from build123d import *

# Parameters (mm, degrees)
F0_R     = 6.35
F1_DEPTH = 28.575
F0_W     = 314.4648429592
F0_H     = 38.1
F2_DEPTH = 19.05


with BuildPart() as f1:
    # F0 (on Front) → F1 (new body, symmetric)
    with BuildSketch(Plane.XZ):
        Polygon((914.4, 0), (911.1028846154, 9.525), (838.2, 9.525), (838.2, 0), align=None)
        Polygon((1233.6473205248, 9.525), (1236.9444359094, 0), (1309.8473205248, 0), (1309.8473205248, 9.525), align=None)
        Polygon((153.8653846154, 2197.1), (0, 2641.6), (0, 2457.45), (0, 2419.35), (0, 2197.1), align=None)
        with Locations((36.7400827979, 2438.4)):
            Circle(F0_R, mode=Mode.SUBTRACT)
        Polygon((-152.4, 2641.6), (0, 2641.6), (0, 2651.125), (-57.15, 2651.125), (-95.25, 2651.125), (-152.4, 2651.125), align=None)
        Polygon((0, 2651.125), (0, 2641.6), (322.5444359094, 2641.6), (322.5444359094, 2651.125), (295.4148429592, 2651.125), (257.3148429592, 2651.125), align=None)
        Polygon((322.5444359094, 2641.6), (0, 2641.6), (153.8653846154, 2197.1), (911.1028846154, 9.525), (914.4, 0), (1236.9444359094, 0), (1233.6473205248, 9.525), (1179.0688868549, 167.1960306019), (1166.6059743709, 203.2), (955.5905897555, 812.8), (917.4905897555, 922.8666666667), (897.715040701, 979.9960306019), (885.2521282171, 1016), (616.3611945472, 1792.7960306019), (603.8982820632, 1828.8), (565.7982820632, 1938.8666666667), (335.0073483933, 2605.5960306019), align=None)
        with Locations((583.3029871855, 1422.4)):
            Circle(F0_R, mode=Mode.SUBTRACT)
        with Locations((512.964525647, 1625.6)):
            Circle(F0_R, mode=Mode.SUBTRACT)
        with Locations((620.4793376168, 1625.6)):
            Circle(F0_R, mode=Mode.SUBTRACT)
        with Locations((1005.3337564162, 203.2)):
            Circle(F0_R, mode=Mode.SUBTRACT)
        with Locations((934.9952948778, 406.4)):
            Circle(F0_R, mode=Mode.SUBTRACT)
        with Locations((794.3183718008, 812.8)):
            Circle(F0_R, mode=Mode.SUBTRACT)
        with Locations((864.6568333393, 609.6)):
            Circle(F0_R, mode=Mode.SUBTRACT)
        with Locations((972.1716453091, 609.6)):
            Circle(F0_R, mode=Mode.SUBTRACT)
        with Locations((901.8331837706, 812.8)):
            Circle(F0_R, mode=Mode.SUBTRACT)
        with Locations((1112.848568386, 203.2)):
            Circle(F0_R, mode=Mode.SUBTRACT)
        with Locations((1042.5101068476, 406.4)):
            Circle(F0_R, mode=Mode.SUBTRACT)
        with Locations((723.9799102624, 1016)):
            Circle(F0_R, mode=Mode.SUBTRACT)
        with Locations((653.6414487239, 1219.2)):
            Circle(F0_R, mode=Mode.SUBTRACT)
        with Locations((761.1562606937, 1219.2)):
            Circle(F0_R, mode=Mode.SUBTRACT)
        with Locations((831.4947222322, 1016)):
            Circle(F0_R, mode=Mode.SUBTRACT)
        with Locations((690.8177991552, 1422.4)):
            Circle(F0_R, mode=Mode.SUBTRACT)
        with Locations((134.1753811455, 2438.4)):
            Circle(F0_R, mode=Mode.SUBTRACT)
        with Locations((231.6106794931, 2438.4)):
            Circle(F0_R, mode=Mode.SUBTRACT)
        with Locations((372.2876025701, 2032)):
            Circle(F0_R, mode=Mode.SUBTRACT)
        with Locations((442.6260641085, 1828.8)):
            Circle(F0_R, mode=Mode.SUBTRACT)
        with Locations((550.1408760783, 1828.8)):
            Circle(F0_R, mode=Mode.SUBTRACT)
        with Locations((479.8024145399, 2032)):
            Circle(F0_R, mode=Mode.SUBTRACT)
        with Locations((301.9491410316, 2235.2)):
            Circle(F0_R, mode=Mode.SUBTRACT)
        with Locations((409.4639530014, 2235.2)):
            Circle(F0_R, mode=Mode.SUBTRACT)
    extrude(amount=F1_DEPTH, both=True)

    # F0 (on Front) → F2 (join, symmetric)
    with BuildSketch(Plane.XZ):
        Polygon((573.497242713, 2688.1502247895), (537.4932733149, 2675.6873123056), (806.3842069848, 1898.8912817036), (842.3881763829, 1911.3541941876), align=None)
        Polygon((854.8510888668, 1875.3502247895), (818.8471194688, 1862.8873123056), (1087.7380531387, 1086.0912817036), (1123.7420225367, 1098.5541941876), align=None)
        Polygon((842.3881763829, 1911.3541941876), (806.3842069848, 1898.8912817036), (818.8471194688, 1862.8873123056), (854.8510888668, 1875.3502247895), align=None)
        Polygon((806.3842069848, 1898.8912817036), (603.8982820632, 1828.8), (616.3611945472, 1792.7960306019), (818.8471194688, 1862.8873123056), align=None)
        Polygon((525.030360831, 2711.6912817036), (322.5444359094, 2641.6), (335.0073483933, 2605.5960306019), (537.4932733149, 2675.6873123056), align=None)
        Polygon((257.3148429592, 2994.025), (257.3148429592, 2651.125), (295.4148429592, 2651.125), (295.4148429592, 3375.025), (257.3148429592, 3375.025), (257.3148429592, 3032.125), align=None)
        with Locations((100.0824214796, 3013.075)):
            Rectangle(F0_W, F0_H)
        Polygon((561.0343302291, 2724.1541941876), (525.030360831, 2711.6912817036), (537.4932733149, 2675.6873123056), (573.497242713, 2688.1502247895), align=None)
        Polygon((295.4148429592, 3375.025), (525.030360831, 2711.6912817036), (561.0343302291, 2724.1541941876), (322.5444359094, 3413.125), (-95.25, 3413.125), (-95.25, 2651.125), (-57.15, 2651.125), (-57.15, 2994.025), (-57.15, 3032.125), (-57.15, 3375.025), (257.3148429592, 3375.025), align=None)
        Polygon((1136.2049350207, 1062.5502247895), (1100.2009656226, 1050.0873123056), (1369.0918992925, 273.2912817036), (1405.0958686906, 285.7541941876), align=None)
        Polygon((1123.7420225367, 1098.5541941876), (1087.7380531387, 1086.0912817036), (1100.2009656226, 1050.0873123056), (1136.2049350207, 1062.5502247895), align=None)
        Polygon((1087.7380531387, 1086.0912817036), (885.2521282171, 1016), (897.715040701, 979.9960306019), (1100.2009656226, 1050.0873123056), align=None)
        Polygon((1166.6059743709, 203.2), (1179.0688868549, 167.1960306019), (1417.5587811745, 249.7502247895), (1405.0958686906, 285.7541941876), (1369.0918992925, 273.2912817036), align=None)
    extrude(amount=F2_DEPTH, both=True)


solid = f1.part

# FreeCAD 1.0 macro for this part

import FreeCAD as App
import Part
import Sketcher
Q = App.Units.Quantity

doc = App.newDocument("Part")
params = doc.addObject("Spreadsheet::Sheet", "Params")
for row, (alias, value) in enumerate([
    ("sketch1_diameter", "0.5 in"),
    ("sketch1_width", "3 in"),
    ("sketch1_width2", "6 in"),
    ("sketch1_height", "17.5 in"),
    ("sketch1_length", "1.5 in"),
    ("pad1_length", "2.25 in"),
    ("sketch2_height", "30 in"),
    ("sketch2_width", "1.5 in"),
    ("sketch2_height2", "13.5 in"),
    ("sketch2_height3", "28.5 in"),
    ("sketch2_length", "1.5 in"),
    ("pad2_length", "1.5 in"),
], start=1):
    params.set(f"A{row}", alias)
    params.set(f"B{row}", "=" + value)
    params.setAlias(f"B{row}", alias)

body = doc.addObject("PartDesign::Body", "Body")

# Sketch on XZ plane
sketch1 = doc.addObject("Sketcher::SketchObject", "Sketch")
body.addObject(sketch1)
sketch1.AttachmentSupport = (doc.XZ_Plane, [""])
sketch1.MapMode = "FlatFace"
sketch1.addGeometry([
    Part.LineSegment(App.Vector(911, 10, 0), App.Vector(838, 10, 0)),  # 0
    Part.LineSegment(App.Vector(838, 10, 0), App.Vector(838, 0, 0)),  # 1
    Part.LineSegment(App.Vector(838, 0, 0), App.Vector(1310, 0, 0)),  # 2
    Part.LineSegment(App.Vector(1310, 0, 0), App.Vector(1310, 10, 0)),  # 3
    Part.LineSegment(App.Vector(1310, 10, 0), App.Vector(1234, 10, 0)),  # 4
    Part.LineSegment(App.Vector(1234, 10, 0), App.Vector(898, 980, 0)),  # 5
    Part.LineSegment(App.Vector(898, 980, 0), App.Vector(885, 1016, 0)),  # 6
    Part.LineSegment(App.Vector(885, 1016, 0), App.Vector(616, 1793, 0)),  # 7
    Part.LineSegment(App.Vector(616, 1793, 0), App.Vector(604, 1829, 0)),  # 8
    Part.LineSegment(App.Vector(604, 1829, 0), App.Vector(335, 2606, 0)),  # 9
    Part.LineSegment(App.Vector(335, 2606, 0), App.Vector(323, 2642, 0)),  # 10
    Part.LineSegment(App.Vector(323, 2642, 0), App.Vector(323, 2651, 0)),  # 11
    Part.LineSegment(App.Vector(323, 2651, 0), App.Vector(-152, 2651, 0)),  # 12
    Part.LineSegment(App.Vector(-152, 2651, 0), App.Vector(-152, 2642, 0)),  # 13
    Part.LineSegment(App.Vector(-152, 2642, 0), App.Vector(0, 2642, 0)),  # 14
    Part.LineSegment(App.Vector(0, 2642, 0), App.Vector(0, 2197, 0)),  # 15
    Part.LineSegment(App.Vector(0, 2197, 0), App.Vector(154, 2197, 0)),  # 16
    Part.LineSegment(App.Vector(154, 2197, 0), App.Vector(911, 10, 0)),  # 17
    Part.Circle(App.Vector(935, 406, 0), App.Vector(0, 0, 1), 6),  # 18
    Part.Circle(App.Vector(1005, 203, 0), App.Vector(0, 0, 1), 6),  # 19
    Part.Circle(App.Vector(1113, 203, 0), App.Vector(0, 0, 1), 6),  # 20
    Part.Circle(App.Vector(1043, 406, 0), App.Vector(0, 0, 1), 6),  # 21
    Part.Circle(App.Vector(865, 610, 0), App.Vector(0, 0, 1), 6),  # 22
    Part.Circle(App.Vector(972, 610, 0), App.Vector(0, 0, 1), 6),  # 23
    Part.Circle(App.Vector(794, 813, 0), App.Vector(0, 0, 1), 6),  # 24
    Part.Circle(App.Vector(724, 1016, 0), App.Vector(0, 0, 1), 6),  # 25
    Part.Circle(App.Vector(831, 1016, 0), App.Vector(0, 0, 1), 6),  # 26
    Part.Circle(App.Vector(654, 1219, 0), App.Vector(0, 0, 1), 6),  # 27
    Part.Circle(App.Vector(761, 1219, 0), App.Vector(0, 0, 1), 6),  # 28
    Part.Circle(App.Vector(902, 813, 0), App.Vector(0, 0, 1), 6),  # 29
    Part.Circle(App.Vector(513, 1626, 0), App.Vector(0, 0, 1), 6),  # 30
    Part.Circle(App.Vector(443, 1829, 0), App.Vector(0, 0, 1), 6),  # 31
    Part.Circle(App.Vector(550, 1829, 0), App.Vector(0, 0, 1), 6),  # 32
    Part.Circle(App.Vector(37, 2438, 0), App.Vector(0, 0, 1), 6),  # 33
    Part.Circle(App.Vector(134, 2438, 0), App.Vector(0, 0, 1), 6),  # 34
    Part.Circle(App.Vector(302, 2235, 0), App.Vector(0, 0, 1), 6),  # 35
    Part.Circle(App.Vector(232, 2438, 0), App.Vector(0, 0, 1), 6),  # 36
    Part.Circle(App.Vector(372, 2032, 0), App.Vector(0, 0, 1), 6),  # 37
    Part.Circle(App.Vector(480, 2032, 0), App.Vector(0, 0, 1), 6),  # 38
    Part.Circle(App.Vector(409, 2235, 0), App.Vector(0, 0, 1), 6),  # 39
    Part.Circle(App.Vector(583, 1422, 0), App.Vector(0, 0, 1), 6),  # 40
    Part.Circle(App.Vector(691, 1422, 0), App.Vector(0, 0, 1), 6),  # 41
    Part.Circle(App.Vector(620, 1626, 0), App.Vector(0, 0, 1), 6),  # 42
], False)
sketch1.addConstraint([
    Sketcher.Constraint("Coincident", 0, 2, 1, 1),
    Sketcher.Constraint("Coincident", 1, 2, 2, 1),
    Sketcher.Constraint("Coincident", 2, 2, 3, 1),
    Sketcher.Constraint("Coincident", 3, 2, 4, 1),
    Sketcher.Constraint("Coincident", 4, 2, 5, 1),
    Sketcher.Constraint("Coincident", 5, 2, 6, 1),
    Sketcher.Constraint("Coincident", 6, 2, 7, 1),
    Sketcher.Constraint("Coincident", 7, 2, 8, 1),
    Sketcher.Constraint("Coincident", 8, 2, 9, 1),
    Sketcher.Constraint("Coincident", 9, 2, 10, 1),
    Sketcher.Constraint("Coincident", 10, 2, 11, 1),
    Sketcher.Constraint("Coincident", 11, 2, 12, 1),
    Sketcher.Constraint("Coincident", 12, 2, 13, 1),
    Sketcher.Constraint("Coincident", 13, 2, 14, 1),
    Sketcher.Constraint("Coincident", 14, 2, 15, 1),
    Sketcher.Constraint("Coincident", 15, 2, 16, 1),
    Sketcher.Constraint("Coincident", 16, 2, 17, 1),
    Sketcher.Constraint("Coincident", 17, 2, 0, 1),
    Sketcher.Constraint("Horizontal", 0),
    Sketcher.Constraint("Vertical", 1),
    Sketcher.Constraint("Horizontal", 2),
    Sketcher.Constraint("Vertical", 3),
    Sketcher.Constraint("Horizontal", 4),
    Sketcher.Constraint("Vertical", 11),
    Sketcher.Constraint("Horizontal", 12),
    Sketcher.Constraint("Vertical", 13),
    Sketcher.Constraint("Horizontal", 14),
    Sketcher.Constraint("Vertical", 15),
    Sketcher.Constraint("Horizontal", 16),
    Sketcher.Constraint("Equal", 18, 19),
    Sketcher.Constraint("Equal", 19, 20),
    Sketcher.Constraint("Equal", 20, 21),
    Sketcher.Constraint("Equal", 21, 22),
    Sketcher.Constraint("Equal", 22, 23),
    Sketcher.Constraint("Equal", 23, 24),
    Sketcher.Constraint("Equal", 24, 25),
    Sketcher.Constraint("Equal", 25, 26),
    Sketcher.Constraint("Equal", 26, 27),
    Sketcher.Constraint("Equal", 27, 28),
    Sketcher.Constraint("Equal", 28, 29),
    Sketcher.Constraint("Equal", 29, 30),
    Sketcher.Constraint("Equal", 30, 31),
    Sketcher.Constraint("Equal", 31, 32),
    Sketcher.Constraint("Equal", 32, 33),
    Sketcher.Constraint("Equal", 33, 34),
    Sketcher.Constraint("Equal", 34, 35),
    Sketcher.Constraint("Equal", 35, 36),
    Sketcher.Constraint("Equal", 36, 37),
    Sketcher.Constraint("Equal", 37, 38),
    Sketcher.Constraint("Equal", 38, 39),
    Sketcher.Constraint("Equal", 39, 40),
    Sketcher.Constraint("Equal", 40, 41),
    Sketcher.Constraint("Equal", 41, 42),
    Sketcher.Constraint("PointOnObject", 1, 2, -1),
    Sketcher.Constraint("PointOnObject", 14, 2, -2),
    Sketcher.Constraint("Parallel", 5, 6),
    Sketcher.Constraint("Parallel", 6, 7),
    Sketcher.Constraint("Parallel", 7, 8),
    Sketcher.Constraint("Parallel", 8, 9),
    Sketcher.Constraint("Parallel", 9, 10),
    Sketcher.Constraint("Parallel", 10, 17),
    Sketcher.Constraint("Horizontal", 19, 3, 20, 3),
    Sketcher.Constraint("Horizontal", 18, 3, 21, 3),
    Sketcher.Constraint("Horizontal", 22, 3, 23, 3),
    Sketcher.Constraint("Horizontal", 25, 3, 26, 3),
    Sketcher.Constraint("Horizontal", 27, 3, 28, 3),
    Sketcher.Constraint("Horizontal", 24, 3, 29, 3),
    Sketcher.Constraint("Horizontal", 31, 3, 32, 3),
    Sketcher.Constraint("Horizontal", 33, 3, 34, 3),
    Sketcher.Constraint("Horizontal", 34, 3, 36, 3),
    Sketcher.Constraint("Horizontal", 37, 3, 38, 3),
    Sketcher.Constraint("Horizontal", 35, 3, 39, 3),
    Sketcher.Constraint("Horizontal", 40, 3, 41, 3),
    Sketcher.Constraint("Horizontal", 30, 3, 42, 3),
    Sketcher.Constraint("Horizontal", 0, 2, 3, 2),
    Sketcher.Constraint("Horizontal", 26, 3, 6, 2),
    Sketcher.Constraint("Horizontal", 32, 3, 8, 2),
    Sketcher.Constraint("Horizontal", 10, 2, 13, 2),
    Sketcher.Constraint("Equal", 3, 11),
    Sketcher.Constraint("Equal", 6, 8),
    Sketcher.Constraint("Equal", 7, 9),
    Sketcher.Constraint("Equal", 8, 10),
    Sketcher.Constraint("Diameter", 18, Q("0.5 in")),
    Sketcher.Constraint("DistanceX", 4, 2, 4, 1, Q("3 in")),
    Sketcher.Constraint("DistanceX", 14, 1, 14, 2, Q("6 in")),
    Sketcher.Constraint("DistanceY", 15, 2, 15, 1, Q("17.5 in")),
    Sketcher.Constraint("DistanceY", -1, 1, 18, 3, Q("16 in")),
    Sketcher.Constraint("DistanceY", -1, 1, 19, 3, Q("8 in")),
    Sketcher.Constraint("DistanceY", -1, 1, 22, 3, Q("24 in")),
    Sketcher.Constraint("DistanceY", -1, 1, 24, 3, Q("32 in")),
    Sketcher.Constraint("DistanceY", -1, 1, 25, 3, Q("40 in")),
    Sketcher.Constraint("DistanceY", -1, 1, 27, 3, Q("48 in")),
    Sketcher.Constraint("DistanceY", -1, 1, 30, 3, Q("64 in")),
    Sketcher.Constraint("DistanceY", -1, 1, 31, 3, Q("72 in")),
    Sketcher.Constraint("DistanceY", -1, 1, 33, 3, Q("96 in")),
    Sketcher.Constraint("DistanceY", -1, 1, 35, 3, Q("88 in")),
    Sketcher.Constraint("DistanceY", -1, 1, 37, 3, Q("80 in")),
    Sketcher.Constraint("DistanceY", -1, 1, 40, 3, Q("56 in")),
    Sketcher.Constraint("DistanceX", -1, 1, 0, 2, Q("33 in")),
    Sketcher.Constraint("Distance", 6, Q("1.5 in")),
    Sketcher.Constraint("DistanceY", 1, 2, 1, 1, Q("0.375 in")),
    Sketcher.Constraint("DistanceX", 12, 2, 12, 1, Q("18.6985998 in")),
    Sketcher.Constraint("DistanceX", 25, 3, 6, 2, Q("6.3492999 in")),
    Sketcher.Constraint("DistanceX", 31, 3, 8, 2, Q("6.3492999 in")),
    Sketcher.Constraint("DistanceX", 17, 2, 4, 2, Q("12.6985998 in")),
    Sketcher.Constraint("DistanceX", 2, 1, 2, 2, Q("471.647321 mm")),
    Sketcher.Constraint("DistanceX", -1, 1, 41, 3, Q("690.817799 mm")),
    Sketcher.Constraint("DistanceX", 33, 3, 34, 3, Q("97.435298 mm")),
    Sketcher.Constraint("DistanceX", 34, 3, 36, 3, Q("97.435298 mm")),
    Sketcher.Constraint("DistanceX", -1, 1, 20, 3, Q("1112.848568 mm")),
    Sketcher.Constraint("DistanceX", -1, 1, 24, 3, Q("794.318372 mm")),
    Sketcher.Constraint("DistanceX", -1, 1, 27, 3, Q("653.641449 mm")),
    Sketcher.Constraint("DistanceX", -1, 1, 28, 3, Q("761.156261 mm")),
    Sketcher.Constraint("DistanceX", -1, 1, 34, 3, Q("134.175381 mm")),
    Sketcher.Constraint("DistanceX", -1, 1, 35, 3, Q("301.949141 mm")),
    Sketcher.Constraint("DistanceX", 18, 3, 19, 3, Q("70.338462 mm")),
    Sketcher.Constraint("DistanceX", 19, 3, 20, 3, Q("107.514812 mm")),
    Sketcher.Constraint("DistanceX", 18, 3, 21, 3, Q("107.514812 mm")),
    Sketcher.Constraint("DistanceX", 22, 3, 18, 3, Q("70.338462 mm")),
    Sketcher.Constraint("DistanceX", 22, 3, 23, 3, Q("107.514812 mm")),
    Sketcher.Constraint("DistanceX", 25, 3, 26, 3, Q("107.514812 mm")),
    Sketcher.Constraint("DistanceX", 24, 3, 29, 3, Q("107.514812 mm")),
    Sketcher.Constraint("DistanceX", 31, 3, 30, 3, Q("70.338462 mm")),
    Sketcher.Constraint("DistanceX", 31, 3, 32, 3, Q("107.514812 mm")),
    Sketcher.Constraint("DistanceX", 35, 3, 37, 3, Q("70.338462 mm")),
    Sketcher.Constraint("DistanceX", 37, 3, 38, 3, Q("107.514812 mm")),
    Sketcher.Constraint("DistanceX", 35, 3, 39, 3, Q("107.514812 mm")),
    Sketcher.Constraint("DistanceX", 40, 3, 27, 3, Q("70.338462 mm")),
    Sketcher.Constraint("DistanceX", 30, 3, 42, 3, Q("107.514812 mm")),
])
sketch1.setExpression("Constraints[82]", "Params.sketch1_diameter")
sketch1.setExpression("Constraints[83]", "Params.sketch1_width")
sketch1.setExpression("Constraints[84]", "Params.sketch1_width2")
sketch1.setExpression("Constraints[85]", "Params.sketch1_height")
sketch1.setExpression("Constraints[99]", "Params.sketch1_length")
pad1 = doc.addObject("PartDesign::Pad", "Pad")
body.addObject(pad1)
pad1.Profile = sketch1
pad1.setExpression("Length", "Params.pad1_length")
pad1.Midplane = True

# Sketch on XZ plane
sketch2 = doc.addObject("Sketcher::SketchObject", "Sketch001")
body.addObject(sketch2)
sketch2.AttachmentSupport = (doc.XZ_Plane, [""])
sketch2.MapMode = "FlatFace"
sketch2.addGeometry([
    Part.LineSegment(App.Vector(537, 2676, 0), App.Vector(806, 1899, 0)),  # 0
    Part.LineSegment(App.Vector(806, 1899, 0), App.Vector(604, 1829, 0)),  # 1
    Part.LineSegment(App.Vector(604, 1829, 0), App.Vector(616, 1793, 0)),  # 2
    Part.LineSegment(App.Vector(616, 1793, 0), App.Vector(819, 1863, 0)),  # 3
    Part.LineSegment(App.Vector(819, 1863, 0), App.Vector(1088, 1086, 0)),  # 4
    Part.LineSegment(App.Vector(1088, 1086, 0), App.Vector(885, 1016, 0)),  # 5
    Part.LineSegment(App.Vector(885, 1016, 0), App.Vector(898, 980, 0)),  # 6
    Part.LineSegment(App.Vector(898, 980, 0), App.Vector(1100, 1050, 0)),  # 7
    Part.LineSegment(App.Vector(1100, 1050, 0), App.Vector(1369, 273, 0)),  # 8
    Part.LineSegment(App.Vector(1369, 273, 0), App.Vector(1167, 203, 0)),  # 9
    Part.LineSegment(App.Vector(1167, 203, 0), App.Vector(1179, 167, 0)),  # 10
    Part.LineSegment(App.Vector(1179, 167, 0), App.Vector(1418, 250, 0)),  # 11
    Part.LineSegment(App.Vector(1418, 250, 0), App.Vector(1405, 286, 0)),  # 12
    Part.LineSegment(App.Vector(1405, 286, 0), App.Vector(1136, 1063, 0)),  # 13
    Part.LineSegment(App.Vector(1136, 1063, 0), App.Vector(1124, 1099, 0)),  # 14
    Part.LineSegment(App.Vector(1124, 1099, 0), App.Vector(855, 1875, 0)),  # 15
    Part.LineSegment(App.Vector(855, 1875, 0), App.Vector(842, 1911, 0)),  # 16
    Part.LineSegment(App.Vector(842, 1911, 0), App.Vector(573, 2688, 0)),  # 17
    Part.LineSegment(App.Vector(573, 2688, 0), App.Vector(561, 2724, 0)),  # 18
    Part.LineSegment(App.Vector(561, 2724, 0), App.Vector(323, 3413, 0)),  # 19
    Part.LineSegment(App.Vector(323, 3413, 0), App.Vector(-95, 3413, 0)),  # 20
    Part.LineSegment(App.Vector(-95, 3413, 0), App.Vector(-95, 2651, 0)),  # 21
    Part.LineSegment(App.Vector(-95, 2651, 0), App.Vector(-57, 2651, 0)),  # 22
    Part.LineSegment(App.Vector(-57, 2651, 0), App.Vector(-57, 2994, 0)),  # 23
    Part.LineSegment(App.Vector(-57, 2994, 0), App.Vector(257, 2994, 0)),  # 24
    Part.LineSegment(App.Vector(257, 2994, 0), App.Vector(257, 2651, 0)),  # 25
    Part.LineSegment(App.Vector(257, 2651, 0), App.Vector(295, 2651, 0)),  # 26
    Part.LineSegment(App.Vector(295, 2651, 0), App.Vector(295, 3375, 0)),  # 27
    Part.LineSegment(App.Vector(295, 3375, 0), App.Vector(525, 2712, 0)),  # 28
    Part.LineSegment(App.Vector(525, 2712, 0), App.Vector(323, 2642, 0)),  # 29
    Part.LineSegment(App.Vector(323, 2642, 0), App.Vector(335, 2606, 0)),  # 30
    Part.LineSegment(App.Vector(335, 2606, 0), App.Vector(537, 2676, 0)),  # 31
    Part.LineSegment(App.Vector(-57, 3032, 0), App.Vector(-57, 3375, 0)),  # 32
    Part.LineSegment(App.Vector(-57, 3375, 0), App.Vector(257, 3375, 0)),  # 33
    Part.LineSegment(App.Vector(257, 3375, 0), App.Vector(257, 3032, 0)),  # 34
    Part.LineSegment(App.Vector(257, 3032, 0), App.Vector(-57, 3032, 0)),  # 35
], False)
sketch2.addConstraint([
    Sketcher.Constraint("Coincident", 0, 2, 1, 1),
    Sketcher.Constraint("Coincident", 1, 2, 2, 1),
    Sketcher.Constraint("Coincident", 2, 2, 3, 1),
    Sketcher.Constraint("Coincident", 3, 2, 4, 1),
    Sketcher.Constraint("Coincident", 4, 2, 5, 1),
    Sketcher.Constraint("Coincident", 5, 2, 6, 1),
    Sketcher.Constraint("Coincident", 6, 2, 7, 1),
    Sketcher.Constraint("Coincident", 7, 2, 8, 1),
    Sketcher.Constraint("Coincident", 8, 2, 9, 1),
    Sketcher.Constraint("Coincident", 9, 2, 10, 1),
    Sketcher.Constraint("Coincident", 10, 2, 11, 1),
    Sketcher.Constraint("Coincident", 11, 2, 12, 1),
    Sketcher.Constraint("Coincident", 12, 2, 13, 1),
    Sketcher.Constraint("Coincident", 13, 2, 14, 1),
    Sketcher.Constraint("Coincident", 14, 2, 15, 1),
    Sketcher.Constraint("Coincident", 15, 2, 16, 1),
    Sketcher.Constraint("Coincident", 16, 2, 17, 1),
    Sketcher.Constraint("Coincident", 17, 2, 18, 1),
    Sketcher.Constraint("Coincident", 18, 2, 19, 1),
    Sketcher.Constraint("Coincident", 19, 2, 20, 1),
    Sketcher.Constraint("Coincident", 20, 2, 21, 1),
    Sketcher.Constraint("Coincident", 21, 2, 22, 1),
    Sketcher.Constraint("Coincident", 22, 2, 23, 1),
    Sketcher.Constraint("Coincident", 23, 2, 24, 1),
    Sketcher.Constraint("Coincident", 24, 2, 25, 1),
    Sketcher.Constraint("Coincident", 25, 2, 26, 1),
    Sketcher.Constraint("Coincident", 26, 2, 27, 1),
    Sketcher.Constraint("Coincident", 27, 2, 28, 1),
    Sketcher.Constraint("Coincident", 28, 2, 29, 1),
    Sketcher.Constraint("Coincident", 29, 2, 30, 1),
    Sketcher.Constraint("Coincident", 30, 2, 31, 1),
    Sketcher.Constraint("Coincident", 31, 2, 0, 1),
    Sketcher.Constraint("Coincident", 32, 2, 33, 1),
    Sketcher.Constraint("Coincident", 33, 2, 34, 1),
    Sketcher.Constraint("Coincident", 34, 2, 35, 1),
    Sketcher.Constraint("Coincident", 35, 2, 32, 1),
    Sketcher.Constraint("Horizontal", 20),
    Sketcher.Constraint("Vertical", 21),
    Sketcher.Constraint("Horizontal", 22),
    Sketcher.Constraint("Vertical", 23),
    Sketcher.Constraint("Horizontal", 24),
    Sketcher.Constraint("Vertical", 25),
    Sketcher.Constraint("Horizontal", 26),
    Sketcher.Constraint("Vertical", 27),
    Sketcher.Constraint("Vertical", 32),
    Sketcher.Constraint("Horizontal", 33),
    Sketcher.Constraint("Vertical", 34),
    Sketcher.Constraint("Horizontal", 35),
    Sketcher.Constraint("Perpendicular", 0, 1),
    Sketcher.Constraint("Perpendicular", 1, 2),
    Sketcher.Constraint("Perpendicular", 2, 3),
    Sketcher.Constraint("Perpendicular", 3, 4),
    Sketcher.Constraint("Perpendicular", 4, 5),
    Sketcher.Constraint("Perpendicular", 5, 6),
    Sketcher.Constraint("Perpendicular", 6, 7),
    Sketcher.Constraint("Perpendicular", 7, 8),
    Sketcher.Constraint("Perpendicular", 8, 9),
    Sketcher.Constraint("Perpendicular", 9, 10),
    Sketcher.Constraint("Perpendicular", 10, 11),
    Sketcher.Constraint("Perpendicular", 11, 12),
    Sketcher.Constraint("Parallel", 12, 13),
    Sketcher.Constraint("Parallel", 13, 14),
    Sketcher.Constraint("Parallel", 14, 15),
    Sketcher.Constraint("Parallel", 15, 16),
    Sketcher.Constraint("Parallel", 16, 17),
    Sketcher.Constraint("Parallel", 17, 18),
    Sketcher.Constraint("Parallel", 18, 19),
    Sketcher.Constraint("Parallel", 19, 28),
    Sketcher.Constraint("Perpendicular", 28, 29),
    Sketcher.Constraint("Perpendicular", 29, 30),
    Sketcher.Constraint("Perpendicular", 30, 31),
    Sketcher.Constraint("Horizontal", 22, 2, 25, 2),
    Sketcher.Constraint("Horizontal", 27, 2, 32, 2),
    Sketcher.Constraint("Vertical", 19, 2, 29, 2),
    Sketcher.Constraint("Vertical", 23, 2, 32, 2),
    Sketcher.Constraint("Vertical", 25, 2, 33, 2),
    Sketcher.Constraint("Equal", 22, 26),
    Sketcher.Constraint("Equal", 25, 32),
    Sketcher.Constraint("Equal", 1, 3),
    Sketcher.Constraint("Equal", 0, 4),
    Sketcher.Constraint("Equal", 3, 5),
    Sketcher.Constraint("Equal", 2, 6),
    Sketcher.Constraint("Equal", 5, 7),
    Sketcher.Constraint("Equal", 4, 8),
    Sketcher.Constraint("Equal", 7, 9),
    Sketcher.Constraint("Equal", 6, 10),
    Sketcher.Constraint("Equal", 10, 12),
    Sketcher.Constraint("Equal", 8, 13),
    Sketcher.Constraint("Equal", 12, 14),
    Sketcher.Constraint("Equal", 13, 15),
    Sketcher.Constraint("Equal", 14, 16),
    Sketcher.Constraint("Equal", 15, 17),
    Sketcher.Constraint("Equal", 16, 18),
    Sketcher.Constraint("Equal", 9, 29),
    Sketcher.Constraint("Equal", 18, 30),
    Sketcher.Constraint("Equal", 29, 31),
    Sketcher.Constraint("DistanceY", 21, 2, 21, 1, Q("30 in")),
    Sketcher.Constraint("DistanceX", 22, 1, 22, 2, Q("1.5 in")),
    Sketcher.Constraint("DistanceY", 23, 1, 23, 2, Q("13.5 in")),
    Sketcher.Constraint("DistanceY", 27, 1, 27, 2, Q("28.5 in")),
    Sketcher.Constraint("DistanceY", -1, 1, 1, 2, Q("72 in")),
    Sketcher.Constraint("DistanceY", -1, 1, 5, 2, Q("40 in")),
    Sketcher.Constraint("Distance", 2, Q("1.5 in")),
    Sketcher.Constraint("DistanceX", 20, 2, -1, 1, Q("3.75 in")),
    Sketcher.Constraint("DistanceX", 20, 2, 20, 1, Q("16.4485998 in")),
    Sketcher.Constraint("DistanceY", -1, 1, 19, 2, Q("134.375 in")),
    Sketcher.Constraint("DistanceX", 10, 2, 12, 2, Q("8.8987001 in")),
    Sketcher.Constraint("DistanceX", -1, 1, 8, 2, Q("1369.091899 mm")),
])
sketch2.setExpression("Constraints[96]", "Params.sketch2_height")
sketch2.setExpression("Constraints[97]", "Params.sketch2_width")
sketch2.setExpression("Constraints[98]", "Params.sketch2_height2")
sketch2.setExpression("Constraints[99]", "Params.sketch2_height3")
sketch2.setExpression("Constraints[102]", "Params.sketch2_length")
pad2 = doc.addObject("PartDesign::Pad", "Pad001")
body.addObject(pad2)
pad2.Profile = sketch2
pad2.setExpression("Length", "Params.pad2_length")
pad2.Midplane = True

doc.recompute()
